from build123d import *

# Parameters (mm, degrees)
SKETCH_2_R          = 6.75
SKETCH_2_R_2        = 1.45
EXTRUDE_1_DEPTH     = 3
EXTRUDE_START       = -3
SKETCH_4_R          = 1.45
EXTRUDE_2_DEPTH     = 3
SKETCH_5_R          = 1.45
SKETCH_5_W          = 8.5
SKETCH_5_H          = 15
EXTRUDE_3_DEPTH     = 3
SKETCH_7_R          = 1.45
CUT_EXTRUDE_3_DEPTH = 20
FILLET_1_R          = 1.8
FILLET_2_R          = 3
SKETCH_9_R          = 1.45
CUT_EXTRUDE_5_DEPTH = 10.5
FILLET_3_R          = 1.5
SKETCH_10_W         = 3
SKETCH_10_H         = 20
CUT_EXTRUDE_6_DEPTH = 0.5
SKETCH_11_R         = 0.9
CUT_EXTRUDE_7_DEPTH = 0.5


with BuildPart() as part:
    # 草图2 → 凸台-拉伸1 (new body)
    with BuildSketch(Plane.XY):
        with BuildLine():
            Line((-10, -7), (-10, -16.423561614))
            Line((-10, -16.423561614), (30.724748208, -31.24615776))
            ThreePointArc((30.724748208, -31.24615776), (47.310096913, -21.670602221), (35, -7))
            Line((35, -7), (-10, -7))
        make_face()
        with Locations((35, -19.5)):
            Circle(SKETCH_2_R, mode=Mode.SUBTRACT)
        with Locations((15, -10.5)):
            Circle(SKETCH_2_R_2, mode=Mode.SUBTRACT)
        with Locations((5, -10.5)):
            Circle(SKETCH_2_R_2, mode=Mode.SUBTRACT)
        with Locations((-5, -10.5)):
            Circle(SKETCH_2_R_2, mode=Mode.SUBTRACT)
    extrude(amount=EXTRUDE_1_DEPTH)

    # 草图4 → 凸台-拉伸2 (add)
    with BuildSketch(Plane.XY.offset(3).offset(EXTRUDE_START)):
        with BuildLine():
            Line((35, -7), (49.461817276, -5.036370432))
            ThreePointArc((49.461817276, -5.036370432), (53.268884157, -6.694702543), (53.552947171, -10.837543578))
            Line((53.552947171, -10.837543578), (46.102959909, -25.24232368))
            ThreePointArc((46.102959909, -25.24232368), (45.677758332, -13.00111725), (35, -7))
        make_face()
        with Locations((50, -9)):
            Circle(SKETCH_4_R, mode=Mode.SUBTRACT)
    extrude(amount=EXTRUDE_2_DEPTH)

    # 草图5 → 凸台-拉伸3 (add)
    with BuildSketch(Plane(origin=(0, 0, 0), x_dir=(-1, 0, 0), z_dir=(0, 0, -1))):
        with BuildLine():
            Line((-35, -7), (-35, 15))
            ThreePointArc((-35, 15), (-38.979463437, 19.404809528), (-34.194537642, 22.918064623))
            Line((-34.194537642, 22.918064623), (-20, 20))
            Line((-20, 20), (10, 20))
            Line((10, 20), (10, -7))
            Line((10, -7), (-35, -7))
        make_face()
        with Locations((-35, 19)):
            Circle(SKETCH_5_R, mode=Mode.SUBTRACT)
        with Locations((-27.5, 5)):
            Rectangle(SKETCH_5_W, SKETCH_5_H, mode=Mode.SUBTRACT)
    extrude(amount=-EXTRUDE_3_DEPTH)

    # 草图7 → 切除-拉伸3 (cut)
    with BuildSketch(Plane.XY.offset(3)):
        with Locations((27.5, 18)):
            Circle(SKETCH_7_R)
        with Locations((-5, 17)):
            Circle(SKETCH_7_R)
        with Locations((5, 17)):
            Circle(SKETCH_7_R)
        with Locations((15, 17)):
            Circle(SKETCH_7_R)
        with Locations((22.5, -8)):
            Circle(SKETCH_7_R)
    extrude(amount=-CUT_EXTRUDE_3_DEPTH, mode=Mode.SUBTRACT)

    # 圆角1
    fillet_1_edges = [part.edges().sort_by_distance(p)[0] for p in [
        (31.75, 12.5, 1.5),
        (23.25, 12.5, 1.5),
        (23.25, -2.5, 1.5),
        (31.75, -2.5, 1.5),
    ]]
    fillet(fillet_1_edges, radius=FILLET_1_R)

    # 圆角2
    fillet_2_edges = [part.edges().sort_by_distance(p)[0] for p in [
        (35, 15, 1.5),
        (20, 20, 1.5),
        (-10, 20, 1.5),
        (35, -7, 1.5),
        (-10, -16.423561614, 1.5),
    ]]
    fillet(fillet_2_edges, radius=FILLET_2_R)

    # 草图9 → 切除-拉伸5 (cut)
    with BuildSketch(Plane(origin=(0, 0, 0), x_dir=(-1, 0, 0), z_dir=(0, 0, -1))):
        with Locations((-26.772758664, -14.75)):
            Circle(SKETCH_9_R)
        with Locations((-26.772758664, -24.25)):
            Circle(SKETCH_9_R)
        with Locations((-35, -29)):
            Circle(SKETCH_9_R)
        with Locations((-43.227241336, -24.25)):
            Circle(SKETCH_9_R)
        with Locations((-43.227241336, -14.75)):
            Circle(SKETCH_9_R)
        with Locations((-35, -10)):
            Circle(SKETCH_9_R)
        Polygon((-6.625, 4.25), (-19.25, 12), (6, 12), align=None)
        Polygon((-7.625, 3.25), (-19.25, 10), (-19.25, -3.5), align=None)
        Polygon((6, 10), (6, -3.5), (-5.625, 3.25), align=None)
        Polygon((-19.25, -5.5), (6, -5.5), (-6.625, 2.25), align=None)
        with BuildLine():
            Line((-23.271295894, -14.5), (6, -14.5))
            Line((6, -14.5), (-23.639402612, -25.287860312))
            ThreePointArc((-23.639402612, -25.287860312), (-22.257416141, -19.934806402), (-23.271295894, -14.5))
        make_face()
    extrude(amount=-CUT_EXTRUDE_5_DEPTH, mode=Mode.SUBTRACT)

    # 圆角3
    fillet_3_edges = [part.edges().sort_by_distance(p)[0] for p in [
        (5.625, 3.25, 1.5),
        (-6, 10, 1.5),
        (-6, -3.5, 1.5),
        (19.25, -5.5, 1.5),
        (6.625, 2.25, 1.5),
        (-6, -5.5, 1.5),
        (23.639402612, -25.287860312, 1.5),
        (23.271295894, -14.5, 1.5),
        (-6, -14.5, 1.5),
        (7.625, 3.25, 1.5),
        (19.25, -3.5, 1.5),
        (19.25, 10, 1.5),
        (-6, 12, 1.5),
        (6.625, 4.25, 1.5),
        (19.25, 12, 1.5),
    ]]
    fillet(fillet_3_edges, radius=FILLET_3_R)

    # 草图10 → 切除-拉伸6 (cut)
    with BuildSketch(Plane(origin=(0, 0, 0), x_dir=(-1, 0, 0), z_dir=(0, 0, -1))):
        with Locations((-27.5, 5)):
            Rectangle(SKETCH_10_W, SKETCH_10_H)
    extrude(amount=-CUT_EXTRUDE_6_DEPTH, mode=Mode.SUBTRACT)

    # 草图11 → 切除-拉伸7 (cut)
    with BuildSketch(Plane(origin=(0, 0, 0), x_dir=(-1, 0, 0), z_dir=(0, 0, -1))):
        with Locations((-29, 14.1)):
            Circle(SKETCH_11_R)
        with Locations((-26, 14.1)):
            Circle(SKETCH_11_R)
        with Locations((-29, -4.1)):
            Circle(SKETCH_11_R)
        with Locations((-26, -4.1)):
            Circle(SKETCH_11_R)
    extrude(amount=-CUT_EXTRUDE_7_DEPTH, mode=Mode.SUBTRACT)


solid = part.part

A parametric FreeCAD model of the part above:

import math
import FreeCAD as App
import Part
import Sketcher

V = App.Vector
Q = App.Units.Quantity


def edges_at(feature, points):
    """Names of the edges that pass closest to the given points."""
    edges = feature.Shape.Edges
    near = lambda p: min(range(len(edges)), key=lambda i: edges[i].distToShape(Part.Vertex(*p))[0])
    return sorted({f"Edge{near(p) + 1}" for p in points})


def add_polygon(sketch, points):
    """Adds a closed chain of lines whose ends are joined by coincident constraints."""
    first, n = sketch.GeometryCount, len(points)
    for a, b in zip(points, points[1:] + points[:1]):
        sketch.addGeometry(Part.LineSegment(App.Vector(*a, 0), App.Vector(*b, 0)), False)
    for i in range(n):
        sketch.addConstraint(Sketcher.Constraint("Coincident", first + i, 2, first + (i + 1) % n, 1))

doc = App.newDocument("Part")
body = doc.addObject("PartDesign::Body", "Body")

sketch1 = body.newObject("Sketcher::SketchObject", "Sketch")
sketch1.AttachmentSupport = (doc.getObject("XY_Plane"), [""])
sketch1.MapMode = "FlatFace"
sketch1.addGeometry([
    Part.LineSegment(V(-10, -7, 0), V(-10, -16.4, 0)),
    Part.LineSegment(V(-10, -16.4, 0), V(30.7, -31.2, 0)),
    Part.ArcOfCircle(Part.Circle(V(35, -19.5, 0), V(0, 0, 1), 12.5), math.radians(-110), math.radians(90)),
    Part.LineSegment(V(35, -7, 0), V(-10, -7, 0)),
    Part.Circle(V(35, -19.5, 0), V(0, 0, 1), 6.8),
    Part.Circle(V(-5, -10.5, 0), V(0, 0, 1), 1.4),
    Part.Circle(V(5, -10.5, 0), V(0, 0, 1), 1.4),
    Part.Circle(V(15, -10.5, 0), V(0, 0, 1), 1.4),
], False)
sketch1.addConstraint([
    Sketcher.Constraint("Coincident", 0, 2, 1, 1),
    Sketcher.Constraint("Tangent", 1, 2, 2, 1),
    Sketcher.Constraint("Tangent", 2, 2, 3, 1),
    Sketcher.Constraint("Coincident", 3, 2, 0, 1),
    Sketcher.Constraint("Vertical", 0),
    Sketcher.Constraint("Horizontal", 3),
    Sketcher.Constraint("Coincident", 4, 3, 2, 3),
    Sketcher.Constraint("Equal", 5, 6),
    Sketcher.Constraint("Equal", 6, 7),
    Sketcher.Constraint("Symmetric", 5, 3, 6, 3, -2),
    Sketcher.Constraint("Horizontal", 6, 3, 7, 3),
    Sketcher.Constraint("Diameter", 4, 13.5),
    Sketcher.Constraint("Diameter", 5, 2.9),
    Sketcher.Constraint("Radius", 2, 12.5),
    Sketcher.Constraint("DistanceX", 3, 2, 3, 1, 45.0),
    Sketcher.Constraint("Angle", 1, Q("-20 deg")),
    Sketcher.Constraint("DistanceX", -1, 1, 2, 3, 35.0),
    Sketcher.Constraint("DistanceX", 5, 3, -1, 1, 5.0),
    Sketcher.Constraint("DistanceX", -1, 1, 7, 3, 15.0),
    Sketcher.Constraint("DistanceY", 2, 2, -1, 1, 7.0),
    Sketcher.Constraint("DistanceY", 2, 3, 5, 3, 9.0),
])
pad1 = body.newObject("PartDesign::Pad", "Pad")
pad1.Profile = sketch1
pad1.Length = 3

sketch2 = body.newObject("Sketcher::SketchObject", "Sketch001")
sketch2.AttachmentSupport = (doc.getObject("XY_Plane"), [""])
sketch2.MapMode = "FlatFace"
sketch2.addGeometry([
    Part.LineSegment(V(49.5, -5, 0), V(35, -7, 0)),
    Part.ArcOfCircle(Part.Circle(V(35, -19.5, 0), V(0, 0, 1), 12.5), math.radians(-27), math.radians(90)),
    Part.LineSegment(V(46.1, -25.2, 0), V(53.6, -10.8, 0)),
    Part.ArcOfCircle(Part.Circle(V(50, -9, 0), V(0, 0, 1), 4), math.radians(-27), math.radians(98)),
    Part.Circle(V(50, -9, 0), V(0, 0, 1), 1.4),
], False)
sketch2.addConstraint([
    Sketcher.Constraint("Coincident", 0, 2, 1, 2),
    Sketcher.Constraint("Tangent", 1, 1, 2, 1),
    Sketcher.Constraint("Tangent", 2, 2, 3, 1),
    Sketcher.Constraint("Tangent", 3, 2, 0, 1),
    Sketcher.Constraint("Coincident", 4, 3, 3, 3),
    Sketcher.Constraint("Vertical", 1, 3, 0, 2),
    Sketcher.Constraint("Radius", 3, 4.0),
    Sketcher.Constraint("Diameter", 4, 2.9),
    Sketcher.Constraint("Radius", 1, 12.5),
    Sketcher.Constraint("DistanceX", -1, 1, 1, 3, 35.0),
    Sketcher.Constraint("DistanceX", -1, 1, 3, 3, 50.0),
    Sketcher.Constraint("DistanceY", 3, 3, -1, 1, 9.0),
    Sketcher.Constraint("DistanceY", 0, 2, -1, 1, 7.0),
])
pad2 = body.newObject("PartDesign::Pad", "Pad001")
pad2.Profile = sketch2
pad2.Length = 3

sketch3 = body.newObject("Sketcher::SketchObject", "Sketch002")
sketch3.AttachmentSupport = (doc.getObject("XY_Plane"), [""])
sketch3.MapMode = "FlatFace"
sketch3.addGeometry(Part.LineSegment(V(35, 15, 0), V(35, -7, 0)), False)
sketch3.addGeometry(Part.LineSegment(V(35, -7, 0), V(-10, -7, 0)), False)
sketch3.addGeometry(Part.LineSegment(V(-10, -7, 0), V(-10, 20, 0)), False)
sketch3.addGeometry(Part.LineSegment(V(-10, 20, 0), V(20, 20, 0)), False)
sketch3.addGeometry(Part.LineSegment(V(20, 20, 0), V(34.2, 22.9, 0)), False)
sketch3.addGeometry(Part.ArcOfCircle(Part.Circle(V(35, 19, 0), V(0, 0, 1), 4), math.radians(-90), math.radians(102)), False)
add_polygon(sketch3, [(31.8, -2.5), (31.8, 12.5), (23.2, 12.5), (23.2, -2.5)])
sketch3.addGeometry(Part.Circle(V(35, 19, 0), V(0, 0, 1), 1.4), False)
sketch3.addConstraint([
    Sketcher.Constraint("Coincident", 0, 2, 1, 1),
    Sketcher.Constraint("Coincident", 1, 2, 2, 1),
    Sketcher.Constraint("Coincident", 2, 2, 3, 1),
    Sketcher.Constraint("Coincident", 3, 2, 4, 1),
    Sketcher.Constraint("Tangent", 4, 2, 5, 2),
    Sketcher.Constraint("Coincident", 5, 1, 0, 1),
    Sketcher.Constraint("Vertical", 0),
    Sketcher.Constraint("Horizontal", 1),
    Sketcher.Constraint("Vertical", 2),
    Sketcher.Constraint("Horizontal", 3),
    Sketcher.Constraint("Vertical", 6),
    Sketcher.Constraint("Horizontal", 7),
    Sketcher.Constraint("Vertical", 8),
    Sketcher.Constraint("Horizontal", 9),
    Sketcher.Constraint("Coincident", 10, 3, 5, 3),
    Sketcher.Constraint("Vertical", 10, 3, 0, 2),
    Sketcher.Constraint("Radius", 5, 4.0),
    Sketcher.Constraint("Diameter", 10, 2.9),
    Sketcher.Constraint("DistanceX", 1, 2, 1, 1, 45.0),
    Sketcher.Constraint("DistanceX", 3, 1, 3, 2, 30.0),
    Sketcher.Constraint("DistanceY", 0, 2, 0, 1, 22.0),
    Sketcher.Constraint("DistanceY", 2, 1, 2, 2, 27.0),
    Sketcher.Constraint("DistanceY", 6, 1, 6, 2, 15.0),
    Sketcher.Constraint("DistanceX", 7, 2, 7, 1, 8.5),
    Sketcher.Constraint("DistanceX", -1, 1, 5, 3, 35.0),
    Sketcher.Constraint("DistanceY", -1, 1, 5, 3, 19.0),
    Sketcher.Constraint("DistanceY", -1, 1, 6, 2, 12.5),
    Sketcher.Constraint("DistanceX", -1, 1, 6, 2, 31.75),
])
pad3 = body.newObject("PartDesign::Pad", "Pad002")
pad3.Profile = sketch3
pad3.Length = 3

sketch4 = body.newObject("Sketcher::SketchObject", "Sketch003")
sketch4.AttachmentSupport = (doc.getObject("XY_Plane"), [""])
sketch4.MapMode = "FlatFace"
sketch4.AttachmentOffset = App.Placement(V(0, 0, 3), App.Rotation())
sketch4.addGeometry([
    Part.Circle(V(27.5, 18, 0), V(0, 0, 1), 1.4),
    Part.Circle(V(-5, 17, 0), V(0, 0, 1), 1.4),
    Part.Circle(V(5, 17, 0), V(0, 0, 1), 1.4),
    Part.Circle(V(15, 17, 0), V(0, 0, 1), 1.4),
    Part.Circle(V(22.5, -8, 0), V(0, 0, 1), 1.4),
], False)
sketch4.addConstraint([
    Sketcher.Constraint("Equal", 0, 1),
    Sketcher.Constraint("Equal", 1, 2),
    Sketcher.Constraint("Equal", 2, 3),
    Sketcher.Constraint("Equal", 3, 4),
    Sketcher.Constraint("Symmetric", 1, 3, 2, 3, -2),
    Sketcher.Constraint("Horizontal", 2, 3, 3, 3),
    Sketcher.Constraint("Diameter", 0, 2.9),
    Sketcher.Constraint("DistanceY", -1, 1, 0, 3, 18.0),
    Sketcher.Constraint("DistanceX", 1, 3, -1, 1, 5.0),
    Sketcher.Constraint("DistanceY", -1, 1, 1, 3, 17.0),
    Sketcher.Constraint("DistanceX", -1, 1, 3, 3, 15.0),
    Sketcher.Constraint("DistanceY", 4, 3, -1, 1, 8.0),
    Sketcher.Constraint("DistanceX", 4, 3, 0, 3, 5.0),
    Sketcher.Constraint("DistanceX", -1, 1, 0, 3, 27.5),
])
pocket1 = body.newObject("PartDesign::Pocket", "Pocket")
pocket1.Profile = sketch4
pocket1.Length = 20
doc.recompute()

fillet = body.newObject("PartDesign::Fillet", "Fillet")
fillet.Base = (pocket1, edges_at(pocket1, [
    (31.75, 12.5, 1.5),
    (23.25, 12.5, 1.5),
    (23.25, -2.5, 1.5),
    (31.75, -2.5, 1.5),
]))
fillet.Radius = 1.8
doc.recompute()

fillet2 = body.newObject("PartDesign::Fillet", "Fillet001")
fillet2.Base = (fillet, edges_at(fillet, [
    (35, 15, 1.5),
    (20, 20, 1.5),
    (-10, 20, 1.5),
    (35, -7, 1.5),
    (-10, -16.424, 1.5),
]))
fillet2.Radius = 3

sketch5 = body.newObject("Sketcher::SketchObject", "Sketch004")
sketch5.AttachmentSupport = (doc.getObject("XY_Plane"), [""])
sketch5.MapMode = "FlatFace"
sketch5.addGeometry(Part.Circle(V(26.8, -14.8, 0), V(0, 0, 1), 1.4), False)
sketch5.addGeometry(Part.Circle(V(26.8, -24.2, 0), V(0, 0, 1), 1.4), False)
sketch5.addGeometry(Part.Circle(V(35, -29, 0), V(0, 0, 1), 1.4), False)
sketch5.addGeometry(Part.Circle(V(43.2, -24.2, 0), V(0, 0, 1), 1.4), False)
sketch5.addGeometry(Part.Circle(V(43.2, -14.8, 0), V(0, 0, 1), 1.4), False)
sketch5.addGeometry(Part.Circle(V(35, -10, 0), V(0, 0, 1), 1.4), False)
add_polygon(sketch5, [(19.2, 12), (6.6, 4.2), (-6, 12)])
add_polygon(sketch5, [(7.6, 3.2), (19.2, 10), (19.2, -3.5)])
add_polygon(sketch5, [(-6, -3.5), (-6, 10), (5.6, 3.2)])
add_polygon(sketch5, [(19.2, -5.5), (-6, -5.5), (6.6, 2.2)])
sketch5.addGeometry(Part.LineSegment(V(-6, -14.5, 0), V(23.3, -14.5, 0)), False)
sketch5.addGeometry(Part.ArcOfCircle(Part.Circle(V(35, -19.5, 0), V(0, 0, 1), 12.7), math.radians(157), math.radians(207)), False)
sketch5.addGeometry(Part.LineSegment(V(23.6, -25.3, 0), V(-6, -14.5, 0)), False)
sketch5.addConstraint([
    Sketcher.Constraint("Coincident", 18, 2, 19, 1),
    Sketcher.Constraint("Coincident", 19, 2, 20, 1),
    Sketcher.Constraint("Coincident", 20, 2, 18, 1),
    Sketcher.Constraint("Horizontal", 8),
    Sketcher.Constraint("Vertical", 10),
    Sketcher.Constraint("Vertical", 12),
    Sketcher.Constraint("Horizontal", 15),
    Sketcher.Constraint("Horizontal", 18),
    Sketcher.Constraint("Equal", 0, 1),
    Sketcher.Constraint("Equal", 1, 2),
    Sketcher.Constraint("Equal", 2, 3),
    Sketcher.Constraint("Equal", 3, 4),
    Sketcher.Constraint("Equal", 4, 5),
    Sketcher.Constraint("Parallel", 11, 13),
    Sketcher.Constraint("Parallel", 9, 14),
    Sketcher.Constraint("Parallel", 6, 16),
    Sketcher.Constraint("Parallel", 7, 17),
    Sketcher.Constraint("Horizontal", 1, 3, 3, 3),
    Sketcher.Constraint("Horizontal", 0, 3, 4, 3),
    Sketcher.Constraint("Horizontal", 9, 2, 12, 2),
    Sketcher.Constraint("Horizontal", 11, 2, 13, 2),
    Sketcher.Constraint("Horizontal", 10, 2, 14, 2),
    Sketcher.Constraint("Vertical", 0, 3, 1, 3),
    Sketcher.Constraint("Vertical", 3, 3, 4, 3),
    Sketcher.Constraint("Vertical", 2, 3, 5, 3),
    Sketcher.Constraint("Vertical", 5, 3, 19, 3),
    Sketcher.Constraint("Vertical", 8, 2, 9, 2),
    Sketcher.Constraint("Vertical", 7, 2, 12, 2),
    Sketcher.Constraint("Vertical", 14, 2, 15, 2),
    Sketcher.Constraint("Vertical", 6, 2, 16, 2),
    Sketcher.Constraint("Vertical", 10, 2, 17, 2),
    Sketcher.Constraint("Vertical", 15, 2, 20, 2),
    Sketcher.Constraint("Diameter", 0, 2.9),
    Sketcher.Constraint("Angle", 20, Q("160 deg")),
    Sketcher.Constraint("Radius", 19, 12.75),
    Sketcher.Constraint("DistanceY", 10, 2, 10, 1, 13.5),
    Sketcher.Constraint("DistanceX", -1, 1, 2, 3, 35.0),
    Sketcher.Constraint("DistanceY", 2, 3, -1, 1, 29.0),
    Sketcher.Constraint("DistanceY", 5, 3, -1, 1, 10.0),
    Sketcher.Constraint("DistanceX", 7, 2, -1, 1, 6.0),
    Sketcher.Constraint("DistanceY", -1, 1, 7, 2, 12.0),
    Sketcher.Constraint("DistanceY", -1, 1, 9, 2, 10.0),
    Sketcher.Constraint("DistanceY", 0, 3, 6, 2, 19.0),
    Sketcher.Constraint("DistanceX", 6, 2, 11, 2, 1.0),
    Sketcher.Constraint("DistanceY", 11, 2, 6, 2, 1.0),
    Sketcher.Constraint("DistanceY", 15, 2, 14, 2, 2.0),
    Sketcher.Constraint("DistanceY", 18, 2, 17, 2, 9.0),
    Sketcher.Constraint("DistanceX", 8, 1, 8, 2, 25.25),
    Sketcher.Constraint("DistanceY", 19, 3, -1, 1, 19.5),
    Sketcher.Constraint("DistanceY", 1, 3, 0, 3, 9.5),
    Sketcher.Constraint("DistanceX", -1, 1, 0, 3, 26.772759),
    Sketcher.Constraint("DistanceX", -1, 1, 3, 3, 43.227241),
])
pocket2 = body.newObject("PartDesign::Pocket", "Pocket001")
pocket2.Profile = sketch5
pocket2.Length = 10.5
pocket2.Reversed = True
doc.recompute()

fillet3 = body.newObject("PartDesign::Fillet", "Fillet002")
fillet3.Base = (pocket2, edges_at(pocket2, [
    (5.625, 3.25, 1.5),
    (-6, 10, 1.5),
    (-6, -3.5, 1.5),
    (19.25, -5.5, 1.5),
    (6.625, 2.25, 1.5),
    (-6, -5.5, 1.5),
    (23.639, -25.288, 1.5),
    (23.271, -14.5, 1.5),
    (-6, -14.5, 1.5),
    (7.625, 3.25, 1.5),
    (19.25, -3.5, 1.5),
    (19.25, 10, 1.5),
    (-6, 12, 1.5),
    (6.625, 4.25, 1.5),
    (19.25, 12, 1.5),
]))
fillet3.Radius = 1.5

sketch6 = body.newObject("Sketcher::SketchObject", "Sketch005")
sketch6.AttachmentSupport = (doc.getObject("XY_Plane"), [""])
sketch6.MapMode = "FlatFace"
add_polygon(sketch6, [(29, 15), (29, -5), (26, -5), (26, 15)])
sketch6.addConstraint([
    Sketcher.Constraint("Vertical", 0),
    Sketcher.Constraint("Horizontal", 1),
    Sketcher.Constraint("Vertical", 2),
    Sketcher.Constraint("Horizontal", 3),
    Sketcher.Constraint("DistanceX", 1, 2, 1, 1, 3.0),
    Sketcher.Constraint("DistanceY", 0, 2, 0, 1, 20.0),
    Sketcher.Constraint("DistanceX", -1, 1, 0, 2, 29.0),
    Sketcher.Constraint("DistanceY", 0, 2, -1, 1, 5.0),
])
pocket3 = body.newObject("PartDesign::Pocket", "Pocket002")
pocket3.Profile = sketch6
pocket3.Length = 0.5
pocket3.Reversed = True

sketch7 = body.newObject("Sketcher::SketchObject", "Sketch006")
sketch7.AttachmentSupport = (doc.getObject("XY_Plane"), [""])
sketch7.MapMode = "FlatFace"
sketch7.addGeometry([
    Part.Circle(V(29, 14.1, 0), V(0, 0, 1), 0.9),
    Part.Circle(V(26, 14.1, 0), V(0, 0, 1), 0.9),
    Part.Circle(V(29, -4.1, 0), V(0, 0, 1), 0.9),
    Part.Circle(V(26, -4.1, 0), V(0, 0, 1), 0.9),
], False)
sketch7.addConstraint([
    Sketcher.Constraint("Equal", 0, 1),
    Sketcher.Constraint("Equal", 1, 2),
    Sketcher.Constraint("Equal", 2, 3),
    Sketcher.Constraint("Horizontal", 0, 3, 1, 3),
    Sketcher.Constraint("Horizontal", 2, 3, 3, 3),
    Sketcher.Constraint("Vertical", 0, 3, 2, 3),
    Sketcher.Constraint("Vertical", 1, 3, 3, 3),
    Sketcher.Constraint("Diameter", 0, 1.8),
    Sketcher.Constraint("DistanceX", -1, 1, 0, 3, 29.0),
    Sketcher.Constraint("DistanceX", -1, 1, 1, 3, 26.0),
    Sketcher.Constraint("DistanceY", -1, 1, 0, 3, 14.1),
    Sketcher.Constraint("DistanceY", 2, 3, -1, 1, 4.1),
])
pocket4 = body.newObject("PartDesign::Pocket", "Pocket003")
pocket4.Profile = sketch7
pocket4.Length = 0.5
pocket4.Reversed = True

doc.recompute()
